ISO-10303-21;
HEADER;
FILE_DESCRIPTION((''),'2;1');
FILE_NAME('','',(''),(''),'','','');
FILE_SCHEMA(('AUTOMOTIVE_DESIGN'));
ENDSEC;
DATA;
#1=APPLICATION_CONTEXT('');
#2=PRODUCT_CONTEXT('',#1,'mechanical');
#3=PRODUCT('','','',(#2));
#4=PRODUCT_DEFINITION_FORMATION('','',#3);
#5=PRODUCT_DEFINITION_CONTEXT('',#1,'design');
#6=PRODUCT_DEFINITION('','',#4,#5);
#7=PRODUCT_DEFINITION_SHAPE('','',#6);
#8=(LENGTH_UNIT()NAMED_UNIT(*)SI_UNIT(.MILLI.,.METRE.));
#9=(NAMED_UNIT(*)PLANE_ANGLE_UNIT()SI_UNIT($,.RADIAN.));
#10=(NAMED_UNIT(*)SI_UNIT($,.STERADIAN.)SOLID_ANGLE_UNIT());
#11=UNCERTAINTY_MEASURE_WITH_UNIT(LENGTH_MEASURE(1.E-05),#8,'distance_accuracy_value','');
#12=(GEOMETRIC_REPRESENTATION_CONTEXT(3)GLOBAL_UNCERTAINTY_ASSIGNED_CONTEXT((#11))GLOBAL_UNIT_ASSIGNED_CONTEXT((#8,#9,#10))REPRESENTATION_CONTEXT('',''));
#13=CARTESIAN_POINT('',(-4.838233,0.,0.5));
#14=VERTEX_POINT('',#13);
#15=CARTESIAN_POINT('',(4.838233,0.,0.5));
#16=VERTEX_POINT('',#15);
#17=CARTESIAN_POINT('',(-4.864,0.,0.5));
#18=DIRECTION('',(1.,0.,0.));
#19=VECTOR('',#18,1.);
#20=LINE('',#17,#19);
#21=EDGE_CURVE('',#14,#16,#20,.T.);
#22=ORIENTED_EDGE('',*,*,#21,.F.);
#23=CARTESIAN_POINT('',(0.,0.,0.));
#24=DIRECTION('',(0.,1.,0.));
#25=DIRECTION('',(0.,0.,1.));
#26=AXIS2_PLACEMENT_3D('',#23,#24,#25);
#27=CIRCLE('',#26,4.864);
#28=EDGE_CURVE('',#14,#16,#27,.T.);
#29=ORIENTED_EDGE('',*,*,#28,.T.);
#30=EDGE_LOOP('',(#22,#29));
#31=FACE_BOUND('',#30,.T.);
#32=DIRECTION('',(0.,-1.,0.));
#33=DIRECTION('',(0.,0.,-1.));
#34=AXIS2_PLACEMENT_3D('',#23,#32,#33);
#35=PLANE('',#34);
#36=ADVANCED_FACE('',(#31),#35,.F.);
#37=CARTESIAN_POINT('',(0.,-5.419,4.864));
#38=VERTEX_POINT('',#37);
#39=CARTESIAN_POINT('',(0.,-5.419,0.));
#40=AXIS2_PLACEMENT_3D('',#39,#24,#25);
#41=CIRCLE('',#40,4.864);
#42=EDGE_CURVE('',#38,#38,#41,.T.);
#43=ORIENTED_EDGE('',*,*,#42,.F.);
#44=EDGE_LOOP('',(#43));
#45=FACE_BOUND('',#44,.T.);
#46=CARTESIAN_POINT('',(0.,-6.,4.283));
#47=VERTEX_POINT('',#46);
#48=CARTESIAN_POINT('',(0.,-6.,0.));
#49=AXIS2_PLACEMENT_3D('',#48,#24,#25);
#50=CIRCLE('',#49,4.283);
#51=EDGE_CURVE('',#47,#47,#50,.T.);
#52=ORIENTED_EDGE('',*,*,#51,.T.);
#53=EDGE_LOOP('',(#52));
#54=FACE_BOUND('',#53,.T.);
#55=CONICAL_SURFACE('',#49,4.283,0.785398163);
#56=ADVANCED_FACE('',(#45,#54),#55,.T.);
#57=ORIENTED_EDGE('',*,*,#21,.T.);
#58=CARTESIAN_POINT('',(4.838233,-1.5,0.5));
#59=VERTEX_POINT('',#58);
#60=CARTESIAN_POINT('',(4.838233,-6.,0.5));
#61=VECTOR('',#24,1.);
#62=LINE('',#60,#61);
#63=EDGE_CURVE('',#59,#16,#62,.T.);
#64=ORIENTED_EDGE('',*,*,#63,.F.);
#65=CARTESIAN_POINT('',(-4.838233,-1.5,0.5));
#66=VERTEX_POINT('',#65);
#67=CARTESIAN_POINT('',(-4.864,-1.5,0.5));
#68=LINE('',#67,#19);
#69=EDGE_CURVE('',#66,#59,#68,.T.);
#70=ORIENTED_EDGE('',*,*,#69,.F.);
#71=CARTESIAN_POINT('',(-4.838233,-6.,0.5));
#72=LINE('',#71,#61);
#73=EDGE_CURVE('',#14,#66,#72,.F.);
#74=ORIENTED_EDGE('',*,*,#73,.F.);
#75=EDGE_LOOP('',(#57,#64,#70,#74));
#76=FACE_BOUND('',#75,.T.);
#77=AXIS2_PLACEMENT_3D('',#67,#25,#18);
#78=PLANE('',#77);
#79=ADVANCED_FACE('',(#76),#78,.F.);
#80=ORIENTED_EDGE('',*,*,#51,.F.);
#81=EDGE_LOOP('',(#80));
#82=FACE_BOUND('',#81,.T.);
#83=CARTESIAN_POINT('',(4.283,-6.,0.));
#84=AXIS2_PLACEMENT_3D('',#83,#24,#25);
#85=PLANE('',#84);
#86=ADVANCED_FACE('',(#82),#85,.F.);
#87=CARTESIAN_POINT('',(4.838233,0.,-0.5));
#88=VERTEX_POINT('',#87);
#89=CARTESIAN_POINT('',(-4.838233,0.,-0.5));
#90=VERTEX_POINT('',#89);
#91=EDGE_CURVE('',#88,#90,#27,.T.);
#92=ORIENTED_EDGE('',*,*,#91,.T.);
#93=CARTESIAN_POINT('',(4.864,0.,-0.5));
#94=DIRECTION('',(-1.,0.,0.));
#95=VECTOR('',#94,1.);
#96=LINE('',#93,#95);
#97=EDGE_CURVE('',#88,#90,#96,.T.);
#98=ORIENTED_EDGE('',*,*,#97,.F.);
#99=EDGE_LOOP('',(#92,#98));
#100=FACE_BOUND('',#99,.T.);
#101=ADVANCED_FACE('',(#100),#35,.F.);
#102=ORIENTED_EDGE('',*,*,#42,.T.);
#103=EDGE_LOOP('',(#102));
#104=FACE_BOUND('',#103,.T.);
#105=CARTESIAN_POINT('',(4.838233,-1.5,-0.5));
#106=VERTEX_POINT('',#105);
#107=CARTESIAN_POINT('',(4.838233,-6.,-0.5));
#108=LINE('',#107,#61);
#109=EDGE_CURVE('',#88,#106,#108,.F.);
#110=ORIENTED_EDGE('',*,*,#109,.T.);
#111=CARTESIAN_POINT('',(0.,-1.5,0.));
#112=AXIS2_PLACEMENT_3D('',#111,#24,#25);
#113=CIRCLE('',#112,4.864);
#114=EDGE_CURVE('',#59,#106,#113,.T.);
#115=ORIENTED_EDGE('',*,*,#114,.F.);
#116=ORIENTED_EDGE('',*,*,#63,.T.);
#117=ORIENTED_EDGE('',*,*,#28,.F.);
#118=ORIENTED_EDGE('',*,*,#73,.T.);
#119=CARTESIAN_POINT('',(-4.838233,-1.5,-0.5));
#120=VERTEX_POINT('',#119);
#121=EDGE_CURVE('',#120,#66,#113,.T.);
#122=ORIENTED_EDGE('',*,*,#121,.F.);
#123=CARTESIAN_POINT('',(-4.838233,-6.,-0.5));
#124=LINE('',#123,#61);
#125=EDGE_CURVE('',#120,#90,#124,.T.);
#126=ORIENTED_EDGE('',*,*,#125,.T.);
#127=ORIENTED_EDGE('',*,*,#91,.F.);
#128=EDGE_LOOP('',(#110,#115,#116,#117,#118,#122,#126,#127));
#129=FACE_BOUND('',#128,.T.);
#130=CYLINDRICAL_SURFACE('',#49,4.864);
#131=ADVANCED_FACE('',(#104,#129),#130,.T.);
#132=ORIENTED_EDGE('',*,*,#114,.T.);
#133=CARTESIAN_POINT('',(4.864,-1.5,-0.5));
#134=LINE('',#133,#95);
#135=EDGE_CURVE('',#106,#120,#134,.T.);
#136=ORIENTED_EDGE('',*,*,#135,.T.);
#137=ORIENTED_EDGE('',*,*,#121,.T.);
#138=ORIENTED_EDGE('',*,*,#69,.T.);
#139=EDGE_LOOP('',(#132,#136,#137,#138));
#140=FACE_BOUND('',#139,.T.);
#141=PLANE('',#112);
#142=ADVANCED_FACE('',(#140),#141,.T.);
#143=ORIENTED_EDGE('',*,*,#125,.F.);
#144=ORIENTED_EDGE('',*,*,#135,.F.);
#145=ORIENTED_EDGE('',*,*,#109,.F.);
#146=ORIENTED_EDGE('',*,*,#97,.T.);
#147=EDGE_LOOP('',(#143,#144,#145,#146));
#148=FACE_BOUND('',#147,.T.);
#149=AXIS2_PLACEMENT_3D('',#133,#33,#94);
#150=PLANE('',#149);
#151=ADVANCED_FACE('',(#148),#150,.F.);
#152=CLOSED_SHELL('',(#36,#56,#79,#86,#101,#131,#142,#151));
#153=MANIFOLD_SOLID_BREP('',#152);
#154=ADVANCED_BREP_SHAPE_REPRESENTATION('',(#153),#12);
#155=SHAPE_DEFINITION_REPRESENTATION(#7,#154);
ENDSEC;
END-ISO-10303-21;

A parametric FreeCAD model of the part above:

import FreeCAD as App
import Part
import Sketcher

V = App.Vector
Q = App.Units.Quantity


def add_polygon(sketch, points):
    """Adds a closed chain of lines whose ends are joined by coincident constraints."""
    first, n = sketch.GeometryCount, len(points)
    for a, b in zip(points, points[1:] + points[:1]):
        sketch.addGeometry(Part.LineSegment(App.Vector(*a, 0), App.Vector(*b, 0)), False)
    for i in range(n):
        sketch.addConstraint(Sketcher.Constraint("Coincident", first + i, 2, first + (i + 1) % n, 1))

doc = App.newDocument("Part")
body = doc.addObject("PartDesign::Body", "Body")

# Sketch on XY plane
sketch1 = body.newObject("Sketcher::SketchObject", "Sketch")
sketch1.AttachmentSupport = (doc.getObject("XY_Plane"), [""])
sketch1.MapMode = "FlatFace"
add_polygon(sketch1, [(4.864, 0), (0, 0), (0, -6), (4.283, -6), (4.864, -5.419)])  # lines 0-4
sketch1.addConstraint([
    Sketcher.Constraint("Horizontal", 0),
    Sketcher.Constraint("Vertical", 1),
    Sketcher.Constraint("Horizontal", 2),
    Sketcher.Constraint("Vertical", 4),
    Sketcher.Constraint("Coincident", 0, 2, -1, 1),
    Sketcher.Constraint("DistanceY", 1, 2, 1, 1, Q("6 mm")),
    Sketcher.Constraint("Angle", 3, Q("45 deg")),
    Sketcher.Constraint("DistanceX", 0, 2, 0, 1, Q("4.864 mm")),
    Sketcher.Constraint("DistanceX", 2, 1, 2, 2, Q("4.283 mm")),
])
revolution = body.newObject("PartDesign::Revolution", "Revolution")
revolution.Profile = sketch1
revolution.ReferenceAxis = (sketch1, ["V_Axis"])
revolution.Angle = 360

# Sketch on XZ plane
sketch2 = body.newObject("Sketcher::SketchObject", "Sketch001")
sketch2.AttachmentSupport = (doc.getObject("XZ_Plane"), [""])
sketch2.MapMode = "FlatFace"
add_polygon(sketch2, [(-4.864, -0.5), (-4.864, 0.5), (4.864, 0.5), (4.864, -0.5)])  # lines 0-3
sketch2.addConstraint([
    Sketcher.Constraint("Vertical", 0),
    Sketcher.Constraint("Horizontal", 1),
    Sketcher.Constraint("Vertical", 2),
    Sketcher.Constraint("Horizontal", 3),
    Sketcher.Constraint("Symmetric", 0, 2, 2, 2, -1, 1),
    Sketcher.Constraint("DistanceY", 0, 1, 0, 2, Q("1 mm")),
    Sketcher.Constraint("DistanceX", 1, 1, 1, 2, Q("9.728 mm")),
])
pocket1 = body.newObject("PartDesign::Pocket", "Pocket")
pocket1.Profile = sketch2
pocket1.Length = 1.5
pocket1.Reversed = True

doc.recompute()
